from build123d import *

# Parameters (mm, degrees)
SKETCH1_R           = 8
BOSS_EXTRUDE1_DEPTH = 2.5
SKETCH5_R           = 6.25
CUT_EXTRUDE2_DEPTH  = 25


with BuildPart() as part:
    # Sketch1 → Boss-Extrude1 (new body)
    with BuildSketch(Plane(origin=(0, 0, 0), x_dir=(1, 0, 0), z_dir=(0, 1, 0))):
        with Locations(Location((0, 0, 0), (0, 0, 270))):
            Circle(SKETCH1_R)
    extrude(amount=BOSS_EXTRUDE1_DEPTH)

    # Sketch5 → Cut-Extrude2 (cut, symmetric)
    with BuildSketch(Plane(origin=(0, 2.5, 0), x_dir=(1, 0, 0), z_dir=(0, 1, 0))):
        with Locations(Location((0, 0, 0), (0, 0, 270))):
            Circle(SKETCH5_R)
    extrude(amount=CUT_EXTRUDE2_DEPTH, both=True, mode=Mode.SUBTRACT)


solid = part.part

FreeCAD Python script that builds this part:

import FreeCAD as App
import Part
import Sketcher

doc = App.newDocument("Part")
body = doc.addObject("PartDesign::Body", "Body")

# Sketch on XZ plane
sketch1 = body.newObject("Sketcher::SketchObject", "Sketch")
sketch1.AttachmentSupport = (doc.getObject("XZ_Plane"), [""])
sketch1.MapMode = "FlatFace"
sketch1.addGeometry(Part.Circle(App.Vector(0, 0, 0), App.Vector(0, 0, 1), 8), False)
sketch1.addConstraint([
    Sketcher.Constraint("Coincident", 0, 3, -1, 1),
    Sketcher.Constraint("Diameter", 0, 16.0),
])
pad1 = body.newObject("PartDesign::Pad", "Pad")
pad1.Profile = sketch1
pad1.Length = 2.5
pad1.Reversed = True

# Sketch on XZ plane
sketch2 = body.newObject("Sketcher::SketchObject", "Sketch001")
sketch2.AttachmentSupport = (doc.getObject("XZ_Plane"), [""])
sketch2.MapMode = "FlatFace"
sketch2.AttachmentOffset = App.Placement(App.Vector(0, 0, -2.5), App.Rotation())
sketch2.addGeometry(Part.Circle(App.Vector(0, 0, 0), App.Vector(0, 0, 1), 6), False)
sketch2.addConstraint([
    Sketcher.Constraint("Coincident", 0, 3, -1, 1),
    Sketcher.Constraint("Diameter", 0, 12.5),
])
pocket1 = body.newObject("PartDesign::Pocket", "Pocket")
pocket1.Profile = sketch2
pocket1.Length = 50
pocket1.Midplane = True

doc.recompute()
